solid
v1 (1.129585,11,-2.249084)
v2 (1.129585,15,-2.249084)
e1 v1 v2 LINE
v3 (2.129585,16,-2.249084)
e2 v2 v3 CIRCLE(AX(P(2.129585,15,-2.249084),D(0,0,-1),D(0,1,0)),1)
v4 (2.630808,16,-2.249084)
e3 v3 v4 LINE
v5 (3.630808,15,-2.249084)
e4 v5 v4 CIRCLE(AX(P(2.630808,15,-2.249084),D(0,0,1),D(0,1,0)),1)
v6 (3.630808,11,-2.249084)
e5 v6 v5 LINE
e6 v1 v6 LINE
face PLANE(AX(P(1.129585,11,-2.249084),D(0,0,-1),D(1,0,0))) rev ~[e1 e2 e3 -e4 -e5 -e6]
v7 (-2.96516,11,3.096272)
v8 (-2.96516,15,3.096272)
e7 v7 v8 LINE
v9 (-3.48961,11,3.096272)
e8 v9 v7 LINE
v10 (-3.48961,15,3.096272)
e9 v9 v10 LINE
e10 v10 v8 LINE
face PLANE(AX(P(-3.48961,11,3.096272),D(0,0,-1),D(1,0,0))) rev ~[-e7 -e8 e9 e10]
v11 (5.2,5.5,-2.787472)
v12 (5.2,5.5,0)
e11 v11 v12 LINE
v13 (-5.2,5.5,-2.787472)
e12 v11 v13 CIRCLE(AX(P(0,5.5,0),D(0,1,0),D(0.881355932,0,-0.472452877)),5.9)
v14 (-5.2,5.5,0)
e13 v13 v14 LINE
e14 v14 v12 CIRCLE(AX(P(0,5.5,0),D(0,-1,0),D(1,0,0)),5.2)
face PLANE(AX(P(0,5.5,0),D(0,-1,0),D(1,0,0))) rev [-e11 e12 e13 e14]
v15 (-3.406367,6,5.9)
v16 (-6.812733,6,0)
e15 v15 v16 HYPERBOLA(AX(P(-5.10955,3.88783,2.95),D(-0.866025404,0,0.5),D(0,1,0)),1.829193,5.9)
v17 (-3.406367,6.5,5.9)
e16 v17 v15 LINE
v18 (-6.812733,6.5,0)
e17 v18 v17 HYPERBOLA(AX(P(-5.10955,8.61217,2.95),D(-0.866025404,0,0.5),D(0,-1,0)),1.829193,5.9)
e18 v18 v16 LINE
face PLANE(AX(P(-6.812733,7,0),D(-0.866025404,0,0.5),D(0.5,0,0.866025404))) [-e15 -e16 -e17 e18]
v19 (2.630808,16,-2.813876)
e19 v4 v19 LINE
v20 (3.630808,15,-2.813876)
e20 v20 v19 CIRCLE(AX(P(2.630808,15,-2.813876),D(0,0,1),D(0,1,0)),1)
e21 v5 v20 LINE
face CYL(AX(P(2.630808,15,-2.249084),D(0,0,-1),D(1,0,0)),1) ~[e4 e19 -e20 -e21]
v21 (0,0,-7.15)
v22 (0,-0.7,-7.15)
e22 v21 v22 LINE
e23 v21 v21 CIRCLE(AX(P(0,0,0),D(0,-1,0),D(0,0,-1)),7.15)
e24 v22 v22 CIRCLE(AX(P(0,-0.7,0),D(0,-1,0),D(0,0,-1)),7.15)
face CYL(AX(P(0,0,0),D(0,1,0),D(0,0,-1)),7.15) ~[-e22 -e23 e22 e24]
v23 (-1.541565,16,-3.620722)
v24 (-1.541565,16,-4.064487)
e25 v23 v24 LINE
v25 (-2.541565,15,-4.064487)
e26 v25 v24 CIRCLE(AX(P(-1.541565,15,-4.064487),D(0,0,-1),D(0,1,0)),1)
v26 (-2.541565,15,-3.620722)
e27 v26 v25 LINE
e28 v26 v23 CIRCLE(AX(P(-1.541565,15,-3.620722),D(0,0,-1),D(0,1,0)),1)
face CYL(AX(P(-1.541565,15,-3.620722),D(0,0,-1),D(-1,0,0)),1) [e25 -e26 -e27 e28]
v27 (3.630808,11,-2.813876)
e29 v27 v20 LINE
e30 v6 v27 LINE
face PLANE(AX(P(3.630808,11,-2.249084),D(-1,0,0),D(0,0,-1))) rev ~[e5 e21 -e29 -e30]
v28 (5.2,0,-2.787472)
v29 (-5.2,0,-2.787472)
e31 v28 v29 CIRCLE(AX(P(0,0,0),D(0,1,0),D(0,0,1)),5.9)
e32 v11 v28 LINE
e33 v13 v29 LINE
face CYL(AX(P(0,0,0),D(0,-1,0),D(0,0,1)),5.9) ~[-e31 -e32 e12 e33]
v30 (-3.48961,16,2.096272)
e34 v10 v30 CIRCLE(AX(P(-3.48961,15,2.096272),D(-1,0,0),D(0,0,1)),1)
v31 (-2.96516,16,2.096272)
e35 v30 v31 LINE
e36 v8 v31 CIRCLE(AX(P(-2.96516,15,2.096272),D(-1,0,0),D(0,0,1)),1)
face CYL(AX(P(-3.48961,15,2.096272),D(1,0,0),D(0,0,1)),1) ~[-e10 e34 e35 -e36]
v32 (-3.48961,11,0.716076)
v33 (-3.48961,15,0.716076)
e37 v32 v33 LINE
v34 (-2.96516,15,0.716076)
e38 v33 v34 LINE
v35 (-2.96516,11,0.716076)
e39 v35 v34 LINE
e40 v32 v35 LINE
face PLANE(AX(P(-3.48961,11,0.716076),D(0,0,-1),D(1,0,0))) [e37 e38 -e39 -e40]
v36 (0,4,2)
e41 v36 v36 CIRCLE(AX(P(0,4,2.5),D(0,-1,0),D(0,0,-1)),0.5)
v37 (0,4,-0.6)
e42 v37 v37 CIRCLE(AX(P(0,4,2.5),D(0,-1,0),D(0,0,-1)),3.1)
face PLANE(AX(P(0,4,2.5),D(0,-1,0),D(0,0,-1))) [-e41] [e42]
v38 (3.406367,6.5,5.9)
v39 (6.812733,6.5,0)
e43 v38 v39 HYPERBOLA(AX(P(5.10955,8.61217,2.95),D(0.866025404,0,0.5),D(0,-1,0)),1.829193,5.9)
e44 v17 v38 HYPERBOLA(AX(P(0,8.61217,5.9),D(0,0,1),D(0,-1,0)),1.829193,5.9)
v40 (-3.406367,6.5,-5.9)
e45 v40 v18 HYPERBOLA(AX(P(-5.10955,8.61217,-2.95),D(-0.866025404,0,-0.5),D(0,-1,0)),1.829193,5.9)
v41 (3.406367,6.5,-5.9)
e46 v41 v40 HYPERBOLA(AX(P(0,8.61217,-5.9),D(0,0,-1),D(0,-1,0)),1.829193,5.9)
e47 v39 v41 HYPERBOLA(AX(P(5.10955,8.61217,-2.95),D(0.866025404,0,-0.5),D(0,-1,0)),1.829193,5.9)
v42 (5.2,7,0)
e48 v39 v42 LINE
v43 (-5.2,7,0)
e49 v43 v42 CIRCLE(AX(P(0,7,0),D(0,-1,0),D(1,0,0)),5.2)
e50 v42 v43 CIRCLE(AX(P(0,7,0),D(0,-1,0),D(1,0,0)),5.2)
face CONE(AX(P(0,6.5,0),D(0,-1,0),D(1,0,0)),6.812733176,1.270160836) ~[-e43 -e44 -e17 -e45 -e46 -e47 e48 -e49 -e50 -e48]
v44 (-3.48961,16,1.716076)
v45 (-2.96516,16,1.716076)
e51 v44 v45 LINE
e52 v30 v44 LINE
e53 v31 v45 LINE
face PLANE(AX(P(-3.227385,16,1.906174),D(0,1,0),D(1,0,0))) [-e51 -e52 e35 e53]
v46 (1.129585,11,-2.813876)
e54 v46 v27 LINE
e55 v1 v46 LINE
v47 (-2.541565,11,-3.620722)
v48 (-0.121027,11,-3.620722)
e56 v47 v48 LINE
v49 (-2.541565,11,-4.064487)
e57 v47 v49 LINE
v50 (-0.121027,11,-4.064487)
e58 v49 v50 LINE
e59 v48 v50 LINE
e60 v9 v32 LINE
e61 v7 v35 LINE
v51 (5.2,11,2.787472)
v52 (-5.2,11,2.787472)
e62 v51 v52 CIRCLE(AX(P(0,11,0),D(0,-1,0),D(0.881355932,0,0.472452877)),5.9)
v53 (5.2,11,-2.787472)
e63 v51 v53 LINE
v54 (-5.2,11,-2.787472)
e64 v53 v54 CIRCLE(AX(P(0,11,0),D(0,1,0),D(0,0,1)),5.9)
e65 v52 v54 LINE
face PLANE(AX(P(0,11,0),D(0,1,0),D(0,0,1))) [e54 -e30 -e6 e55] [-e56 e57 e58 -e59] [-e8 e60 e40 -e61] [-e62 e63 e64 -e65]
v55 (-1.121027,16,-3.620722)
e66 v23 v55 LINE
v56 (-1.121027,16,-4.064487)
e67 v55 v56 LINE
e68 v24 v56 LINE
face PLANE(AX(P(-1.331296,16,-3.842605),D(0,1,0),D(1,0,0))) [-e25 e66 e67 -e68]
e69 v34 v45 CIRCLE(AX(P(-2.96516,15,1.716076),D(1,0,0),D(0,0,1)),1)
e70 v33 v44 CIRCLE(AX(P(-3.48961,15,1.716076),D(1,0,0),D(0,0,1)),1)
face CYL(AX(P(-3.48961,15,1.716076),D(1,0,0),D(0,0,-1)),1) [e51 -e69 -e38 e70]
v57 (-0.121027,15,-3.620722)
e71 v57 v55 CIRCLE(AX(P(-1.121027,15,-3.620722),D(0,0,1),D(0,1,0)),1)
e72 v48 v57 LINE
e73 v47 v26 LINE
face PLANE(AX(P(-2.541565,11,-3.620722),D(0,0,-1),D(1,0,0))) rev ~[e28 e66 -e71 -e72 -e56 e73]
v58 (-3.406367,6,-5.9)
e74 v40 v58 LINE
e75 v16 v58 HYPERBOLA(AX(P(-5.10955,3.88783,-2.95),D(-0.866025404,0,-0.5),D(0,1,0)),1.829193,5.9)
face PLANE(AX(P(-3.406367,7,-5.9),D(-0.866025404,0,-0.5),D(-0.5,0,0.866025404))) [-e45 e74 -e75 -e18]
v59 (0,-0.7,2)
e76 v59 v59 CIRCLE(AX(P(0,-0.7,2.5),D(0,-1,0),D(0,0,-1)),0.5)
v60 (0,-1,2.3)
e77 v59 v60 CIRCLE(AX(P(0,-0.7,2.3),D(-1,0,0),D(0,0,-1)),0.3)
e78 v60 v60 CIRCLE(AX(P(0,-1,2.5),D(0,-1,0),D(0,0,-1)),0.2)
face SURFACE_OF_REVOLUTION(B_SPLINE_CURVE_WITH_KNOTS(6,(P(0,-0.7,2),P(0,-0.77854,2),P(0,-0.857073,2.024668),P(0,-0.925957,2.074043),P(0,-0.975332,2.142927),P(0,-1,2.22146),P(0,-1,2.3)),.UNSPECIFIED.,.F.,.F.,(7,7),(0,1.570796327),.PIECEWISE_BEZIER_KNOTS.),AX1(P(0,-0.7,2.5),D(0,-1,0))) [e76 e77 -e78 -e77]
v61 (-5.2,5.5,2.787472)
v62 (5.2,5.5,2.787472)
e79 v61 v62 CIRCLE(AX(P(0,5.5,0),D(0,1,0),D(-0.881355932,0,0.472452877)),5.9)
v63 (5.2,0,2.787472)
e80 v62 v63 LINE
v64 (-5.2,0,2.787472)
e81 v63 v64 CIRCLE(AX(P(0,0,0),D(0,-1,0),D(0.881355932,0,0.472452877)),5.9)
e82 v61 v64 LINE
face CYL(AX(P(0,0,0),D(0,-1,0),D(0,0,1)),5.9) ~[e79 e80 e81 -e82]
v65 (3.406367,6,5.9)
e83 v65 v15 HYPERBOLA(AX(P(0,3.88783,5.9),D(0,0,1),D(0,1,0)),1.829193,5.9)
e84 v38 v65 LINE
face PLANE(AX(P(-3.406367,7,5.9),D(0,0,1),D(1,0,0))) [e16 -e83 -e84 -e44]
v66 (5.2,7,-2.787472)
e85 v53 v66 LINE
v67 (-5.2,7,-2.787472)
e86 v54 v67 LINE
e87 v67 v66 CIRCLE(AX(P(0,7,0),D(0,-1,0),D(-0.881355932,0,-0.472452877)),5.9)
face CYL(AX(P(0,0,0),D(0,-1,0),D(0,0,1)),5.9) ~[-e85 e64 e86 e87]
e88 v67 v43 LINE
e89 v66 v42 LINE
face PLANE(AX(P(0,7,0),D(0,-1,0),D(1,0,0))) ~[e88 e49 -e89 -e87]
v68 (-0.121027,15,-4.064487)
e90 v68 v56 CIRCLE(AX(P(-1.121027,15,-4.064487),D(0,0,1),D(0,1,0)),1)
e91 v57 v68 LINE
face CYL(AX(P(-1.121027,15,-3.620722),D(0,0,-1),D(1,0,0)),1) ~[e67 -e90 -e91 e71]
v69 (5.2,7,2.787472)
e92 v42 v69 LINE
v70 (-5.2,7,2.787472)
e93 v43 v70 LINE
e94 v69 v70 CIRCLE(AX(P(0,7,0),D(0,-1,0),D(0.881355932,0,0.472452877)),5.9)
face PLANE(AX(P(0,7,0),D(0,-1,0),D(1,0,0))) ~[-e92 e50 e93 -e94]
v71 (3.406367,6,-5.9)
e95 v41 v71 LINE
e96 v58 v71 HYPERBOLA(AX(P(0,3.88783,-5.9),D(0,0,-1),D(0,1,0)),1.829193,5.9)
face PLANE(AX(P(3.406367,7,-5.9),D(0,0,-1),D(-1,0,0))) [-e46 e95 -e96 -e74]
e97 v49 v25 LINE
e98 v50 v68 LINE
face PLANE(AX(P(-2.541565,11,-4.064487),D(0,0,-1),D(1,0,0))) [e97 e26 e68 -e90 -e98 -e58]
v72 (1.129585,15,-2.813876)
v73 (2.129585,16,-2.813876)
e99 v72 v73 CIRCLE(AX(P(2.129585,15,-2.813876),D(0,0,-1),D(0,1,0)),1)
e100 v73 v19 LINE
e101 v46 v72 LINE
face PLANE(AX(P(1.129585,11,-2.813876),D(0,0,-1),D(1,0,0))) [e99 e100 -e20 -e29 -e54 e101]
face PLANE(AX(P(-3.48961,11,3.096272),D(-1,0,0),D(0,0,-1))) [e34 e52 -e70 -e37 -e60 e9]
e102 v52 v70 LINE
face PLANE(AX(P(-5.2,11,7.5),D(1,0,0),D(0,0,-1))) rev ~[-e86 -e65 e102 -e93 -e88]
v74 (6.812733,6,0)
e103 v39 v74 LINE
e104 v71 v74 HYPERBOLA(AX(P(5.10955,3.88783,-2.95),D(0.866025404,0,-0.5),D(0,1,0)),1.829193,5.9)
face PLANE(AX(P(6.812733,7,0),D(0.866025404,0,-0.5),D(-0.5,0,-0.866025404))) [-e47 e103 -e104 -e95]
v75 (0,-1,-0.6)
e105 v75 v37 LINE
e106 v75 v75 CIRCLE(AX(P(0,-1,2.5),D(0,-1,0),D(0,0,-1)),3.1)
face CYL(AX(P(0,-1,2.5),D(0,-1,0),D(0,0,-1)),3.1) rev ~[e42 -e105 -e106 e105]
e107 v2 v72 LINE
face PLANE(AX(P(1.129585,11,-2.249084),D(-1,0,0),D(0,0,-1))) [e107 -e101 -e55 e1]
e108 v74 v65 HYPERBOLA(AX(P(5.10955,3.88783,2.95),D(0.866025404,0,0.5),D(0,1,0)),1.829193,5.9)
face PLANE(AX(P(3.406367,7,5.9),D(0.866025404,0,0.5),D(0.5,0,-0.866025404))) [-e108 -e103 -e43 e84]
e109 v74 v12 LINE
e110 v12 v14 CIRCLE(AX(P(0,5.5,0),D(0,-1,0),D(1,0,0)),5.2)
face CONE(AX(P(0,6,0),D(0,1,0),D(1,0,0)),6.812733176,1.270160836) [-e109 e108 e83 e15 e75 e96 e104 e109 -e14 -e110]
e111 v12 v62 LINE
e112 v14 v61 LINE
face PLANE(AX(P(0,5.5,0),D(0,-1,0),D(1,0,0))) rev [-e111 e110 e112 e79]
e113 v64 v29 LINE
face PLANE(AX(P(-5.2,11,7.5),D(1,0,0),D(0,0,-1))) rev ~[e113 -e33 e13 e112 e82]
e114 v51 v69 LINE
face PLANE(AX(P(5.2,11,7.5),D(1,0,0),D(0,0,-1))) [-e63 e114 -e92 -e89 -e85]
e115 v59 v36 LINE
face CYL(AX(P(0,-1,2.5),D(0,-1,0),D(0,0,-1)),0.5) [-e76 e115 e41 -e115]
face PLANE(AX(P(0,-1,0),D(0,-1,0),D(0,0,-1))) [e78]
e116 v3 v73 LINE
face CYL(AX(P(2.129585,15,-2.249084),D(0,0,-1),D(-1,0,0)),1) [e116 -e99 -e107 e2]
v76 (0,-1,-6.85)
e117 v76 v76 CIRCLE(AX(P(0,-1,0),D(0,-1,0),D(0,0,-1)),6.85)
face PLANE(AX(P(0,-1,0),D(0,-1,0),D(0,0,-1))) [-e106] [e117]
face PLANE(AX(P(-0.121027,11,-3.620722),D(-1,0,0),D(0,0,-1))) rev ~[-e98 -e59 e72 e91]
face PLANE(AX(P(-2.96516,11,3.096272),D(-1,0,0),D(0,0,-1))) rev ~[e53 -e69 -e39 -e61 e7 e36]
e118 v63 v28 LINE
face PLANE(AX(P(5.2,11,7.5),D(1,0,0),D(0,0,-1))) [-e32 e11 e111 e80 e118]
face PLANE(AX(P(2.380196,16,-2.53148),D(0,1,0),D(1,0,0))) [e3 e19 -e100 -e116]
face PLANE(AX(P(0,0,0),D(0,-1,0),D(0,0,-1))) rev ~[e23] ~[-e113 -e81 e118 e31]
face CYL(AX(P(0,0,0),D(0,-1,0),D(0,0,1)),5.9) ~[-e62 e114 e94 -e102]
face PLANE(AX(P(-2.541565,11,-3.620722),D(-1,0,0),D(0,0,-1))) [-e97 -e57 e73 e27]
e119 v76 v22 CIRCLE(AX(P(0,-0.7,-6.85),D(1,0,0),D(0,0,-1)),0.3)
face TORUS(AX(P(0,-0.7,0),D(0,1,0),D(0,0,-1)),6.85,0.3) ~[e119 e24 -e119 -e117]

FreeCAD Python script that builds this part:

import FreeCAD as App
import Part
import Sketcher

V = App.Vector
Q = App.Units.Quantity


def edges_at(feature, points):
    """Names of the edges that pass closest to the given points."""
    edges = feature.Shape.Edges
    near = lambda p: min(range(len(edges)), key=lambda i: edges[i].distToShape(Part.Vertex(*p))[0])
    return sorted({f"Edge{near(p) + 1}" for p in points})


def add_polygon(sketch, points):
    """Adds a closed chain of lines whose ends are joined by coincident constraints."""
    first, n = sketch.GeometryCount, len(points)
    for a, b in zip(points, points[1:] + points[:1]):
        sketch.addGeometry(Part.LineSegment(App.Vector(*a, 0), App.Vector(*b, 0)), False)
    for i in range(n):
        sketch.addConstraint(Sketcher.Constraint("Coincident", first + i, 2, first + (i + 1) % n, 1))

doc = App.newDocument("Part")
params = doc.addObject("Spreadsheet::Sheet", "Params")
for row, (alias, value) in enumerate([
    ("sketch1_diameter", "11.8 mm"),
    ("pad1_length", "11 mm"),
    ("sketch2_diameter", "14.3 mm"),
    ("pad2_length", "1 mm"),
    ("sketch3_diameter", "1 mm"),
    ("sketch3_diameter2", "6.2 mm"),
    ("pocket1_length", "5 mm"),
    ("fillet_radius", "0.3 mm"),
    ("fillet2_radius", "0.3 mm"),
    ("sketch4_height", "21 mm"),
    ("sketch4_height2", "15 mm"),
    ("sketch4_width", "16.4 mm"),
    ("sketch4_width2", "10.4 mm"),
    ("pocket2_length", "11 mm"),
    ("pad3_length", "5 mm"),
    ("fillet3_radius", "1 mm"),
    ("pad4_length", "1.5 mm"),
    ("sketch7_height", "0.5 mm"),
    ("groove_angle", "360 deg"),
], start=1):
    params.set(f"A{row}", alias)
    params.set(f"B{row}", "=" + value)
    params.setAlias(f"B{row}", alias)

body = doc.addObject("PartDesign::Body", "Body")

# Sketch on XZ plane
sketch1 = doc.addObject("Sketcher::SketchObject", "Sketch")
body.addObject(sketch1)
sketch1.AttachmentSupport = (doc.XZ_Plane, [""])
sketch1.MapMode = "FlatFace"
sketch1.addGeometry(Part.Circle(V(0, 0, 0), V(0, 0, 1), 6), False)
sketch1.addConstraint([
    Sketcher.Constraint("Coincident", 0, 3, -1, 1),
    Sketcher.Constraint("Diameter", 0, 11.8),
])
sketch1.setExpression("Constraints[1]", "Params.sketch1_diameter")
pad1 = doc.addObject("PartDesign::Pad", "Pad")
body.addObject(pad1)
pad1.Profile = sketch1
pad1.setExpression("Length", "Params.pad1_length")
pad1.Reversed = True

# Sketch on XZ plane
sketch2 = doc.addObject("Sketcher::SketchObject", "Sketch001")
body.addObject(sketch2)
sketch2.AttachmentSupport = (doc.XZ_Plane, [""])
sketch2.MapMode = "FlatFace"
sketch2.addGeometry(Part.Circle(V(0, 0, 0), V(0, 0, 1), 7), False)
sketch2.addConstraint([
    Sketcher.Constraint("Coincident", 0, 3, -1, 1),
    Sketcher.Constraint("Diameter", 0, 14.3),
])
sketch2.setExpression("Constraints[1]", "Params.sketch2_diameter")
pad2 = doc.addObject("PartDesign::Pad", "Pad001")
body.addObject(pad2)
pad2.Profile = sketch2
pad2.setExpression("Length", "Params.pad2_length")

# Sketch on XZ plane
sketch3 = doc.addObject("Sketcher::SketchObject", "Sketch002")
body.addObject(sketch3)
sketch3.AttachmentSupport = (doc.XZ_Plane, [""])
sketch3.MapMode = "FlatFace"
sketch3.AttachmentOffset = App.Placement(V(0, 0, 1), App.Rotation())
sketch3.addGeometry([
    Part.Circle(V(0, 2.5, 0), V(0, 0, 1), 3.1),
    Part.Circle(V(0, 2.5, 0), V(0, 0, 1), 0.5),
], False)
sketch3.addConstraint([
    Sketcher.Constraint("Coincident", 1, 3, 0, 3),
    Sketcher.Constraint("PointOnObject", 0, 3, -2),
    Sketcher.Constraint("Diameter", 1, 1.0),
    Sketcher.Constraint("Diameter", 0, 6.2),
    Sketcher.Constraint("DistanceY", -1, 1, 0, 3, 2.5),
])
sketch3.setExpression("Constraints[2]", "Params.sketch3_diameter")
sketch3.setExpression("Constraints[3]", "Params.sketch3_diameter2")
pocket1 = doc.addObject("PartDesign::Pocket", "Pocket")
body.addObject(pocket1)
pocket1.Profile = sketch3
pocket1.setExpression("Length", "Params.pocket1_length")
doc.recompute()

fillet = doc.addObject("PartDesign::Fillet", "Fillet")
body.addObject(fillet)
fillet.Base = (pocket1, edges_at(pocket1, [(0, -1, 3)]))
fillet.setExpression("Radius", "Params.fillet_radius")
doc.recompute()

fillet2 = doc.addObject("PartDesign::Fillet", "Fillet001")
body.addObject(fillet2)
fillet2.Base = (fillet, edges_at(fillet, [(0, -1, 7.15)]))
fillet2.setExpression("Radius", "Params.fillet2_radius")

# Sketch on XZ plane
sketch4 = doc.addObject("Sketcher::SketchObject", "Sketch003")
body.addObject(sketch4)
sketch4.AttachmentSupport = (doc.XZ_Plane, [""])
sketch4.MapMode = "FlatFace"
sketch4.AttachmentOffset = App.Placement(V(0, 0, -11), App.Rotation())
add_polygon(sketch4, [(-8, -10), (-8, 10), (8, 10), (8, -10)])  # lines 0-3
add_polygon(sketch4, [(5, 8), (-5, 8), (-5, -8), (5, -8)])  # lines 4-7
sketch4.addConstraint([
    Sketcher.Constraint("Vertical", 0),
    Sketcher.Constraint("Horizontal", 1),
    Sketcher.Constraint("Vertical", 2),
    Sketcher.Constraint("Horizontal", 3),
    Sketcher.Constraint("Horizontal", 4),
    Sketcher.Constraint("Vertical", 5),
    Sketcher.Constraint("Horizontal", 6),
    Sketcher.Constraint("Vertical", 7),
    Sketcher.Constraint("Symmetric", 0, 2, 2, 2, -1, 1),
    Sketcher.Constraint("Symmetric", 4, 2, 6, 2, -1, 1),
    Sketcher.Constraint("DistanceY", 0, 1, 0, 2, 21.0),
    Sketcher.Constraint("DistanceY", 5, 2, 5, 1, 15.0),
    Sketcher.Constraint("DistanceX", 1, 1, 1, 2, 16.4),
    Sketcher.Constraint("DistanceX", 4, 2, 4, 1, 10.4),
])
sketch4.setExpression("Constraints[18]", "Params.sketch4_height")
sketch4.setExpression("Constraints[19]", "Params.sketch4_height2")
sketch4.setExpression("Constraints[20]", "Params.sketch4_width")
sketch4.setExpression("Constraints[21]", "Params.sketch4_width2")
pocket2 = doc.addObject("PartDesign::Pocket", "Pocket001")
body.addObject(pocket2)
pocket2.Profile = sketch4
pocket2.setExpression("Length", "Params.pocket2_length")
pocket2.Reversed = True

# Sketch on XZ plane
sketch5 = doc.addObject("Sketcher::SketchObject", "Sketch004")
body.addObject(sketch5)
sketch5.AttachmentSupport = (doc.XZ_Plane, [""])
sketch5.MapMode = "FlatFace"
sketch5.AttachmentOffset = App.Placement(V(0, 0, -11), App.Rotation())
add_polygon(sketch5, [(-2.54, -4.06), (-2.54, -3.62), (-0.12, -3.62), (-0.12, -4.06)])  # lines 0-3
add_polygon(sketch5, [(1.13, -2.81), (1.13, -2.25), (3.63, -2.25), (3.63, -2.81)])  # lines 4-7
add_polygon(sketch5, [(-3.49, 0.72), (-3.49, 3.1), (-2.97, 3.1), (-2.97, 0.72)])  # lines 8-11
sketch5.addConstraint([
    Sketcher.Constraint("Vertical", 0),
    Sketcher.Constraint("Horizontal", 1),
    Sketcher.Constraint("Vertical", 2),
    Sketcher.Constraint("Horizontal", 3),
    Sketcher.Constraint("Vertical", 4),
    Sketcher.Constraint("Horizontal", 5),
    Sketcher.Constraint("Vertical", 6),
    Sketcher.Constraint("Horizontal", 7),
    Sketcher.Constraint("Vertical", 8),
    Sketcher.Constraint("Horizontal", 9),
    Sketcher.Constraint("Vertical", 10),
    Sketcher.Constraint("Horizontal", 11),
    Sketcher.Constraint("DistanceX", 1, 1, 1, 2, 2.420538),
    Sketcher.Constraint("DistanceX", 9, 1, 9, 2, 0.52445),
    Sketcher.Constraint("DistanceX", 5, 1, 5, 2, 2.501223),
    Sketcher.Constraint("DistanceY", 0, 1, 0, 2, 0.443765),
    Sketcher.Constraint("DistanceY", 4, 1, 4, 2, 0.564792),
    Sketcher.Constraint("DistanceY", 8, 1, 8, 2, 2.380196),
    Sketcher.Constraint("DistanceX", 8, 2, -1, 1, 3.48961),
    Sketcher.Constraint("DistanceX", 1, 2, 4, 2, 1.250611),
    Sketcher.Constraint("DistanceY", 1, 2, 4, 2, 1.371638),
    Sketcher.Constraint("DistanceY", 3, 2, 8, 2, 7.160759),
    Sketcher.Constraint("DistanceX", 0, 2, -1, 1, 2.541565),
    Sketcher.Constraint("DistanceY", 0, 2, -1, 1, 3.620722),
])
pad3 = doc.addObject("PartDesign::Pad", "Pad002")
body.addObject(pad3)
pad3.Profile = sketch5
pad3.setExpression("Length", "Params.pad3_length")
pad3.Reversed = True
doc.recompute()

fillet3 = doc.addObject("PartDesign::Fillet", "Fillet002")
body.addObject(fillet3)
fillet3.Base = (pad3, edges_at(pad3, [
    (-0.121, 16, -3.843),
    (-2.542, 16, -3.843),
    (3.631, 16, -2.531),
    (1.13, 16, -2.531),
    (-3.227, 16, 0.716),
    (-3.227, 16, 3.096),
]))
fillet3.setExpression("Radius", "Params.fillet3_radius")

# Sketch on XZ plane
sketch6 = doc.addObject("Sketcher::SketchObject", "Sketch005")
body.addObject(sketch6)
sketch6.AttachmentSupport = (doc.XZ_Plane, [""])
sketch6.MapMode = "FlatFace"
sketch6.AttachmentOffset = App.Placement(V(0, 0, -7), App.Rotation())
add_polygon(sketch6, [(-3, -6), (-7, 0), (-3, 6), (3, 6), (7, 0), (3, -6)])  # lines 0-5
sketch6.addConstraint([
    Sketcher.Constraint("Horizontal", 2),
    Sketcher.Constraint("Horizontal", 5),
    Sketcher.Constraint("Symmetric", 0, 2, 3, 2, -1, 1),
    Sketcher.Constraint("Symmetric", 1, 2, 4, 2, -1, 1),
    Sketcher.Constraint("PointOnObject", 0, 2, -1),
    Sketcher.Constraint("Parallel", 0, 3),
    Sketcher.Constraint("Vertical", 2, 2, 4, 2),
    Sketcher.Constraint("Angle", 0, Q("120 deg")),
    Sketcher.Constraint("DistanceY", -1, 1, 1, 2, 5.9),
    Sketcher.Constraint("DistanceX", 0, 2, 2, 2, 10.2191),
])
pad4 = doc.addObject("PartDesign::Pad", "Pad003")
body.addObject(pad4)
pad4.Profile = sketch6
pad4.setExpression("Length", "Params.pad4_length")

# Sketch on XY plane
sketch7 = doc.addObject("Sketcher::SketchObject", "Sketch006")
body.addObject(sketch7)
sketch7.AttachmentSupport = (doc.XY_Plane, [""])
sketch7.MapMode = "FlatFace"
add_polygon(sketch7, [(-6.8, 7), (-6.8, 6.5), (-5.2, 7)])  # lines 0-2
add_polygon(sketch7, [(-6.8, 5.5), (-5.2, 5.5), (-6.8, 6)])  # lines 3-5
sketch7.addConstraint([
    Sketcher.Constraint("Vertical", 0),
    Sketcher.Constraint("Horizontal", 2),
    Sketcher.Constraint("Horizontal", 3),
    Sketcher.Constraint("Vertical", 5),
    Sketcher.Constraint("Vertical", 1, 2, 3, 2),
    Sketcher.Constraint("Vertical", 2, 2, 4, 2),
    Sketcher.Constraint("Equal", 0, 5),
    Sketcher.Constraint("DistanceY", 0, 2, 0, 1, 0.5),
    Sketcher.Constraint("DistanceY", -1, 1, 1, 2, 7.0),
    Sketcher.Constraint("DistanceY", -1, 1, 4, 2, 6.0),
    Sketcher.Constraint("DistanceX", 1, 2, -1, 1, 5.2),
    Sketcher.Constraint("DistanceX", 2, 2, 2, 1, 1.612733),
])
sketch7.setExpression("Constraints[13]", "Params.sketch7_height")
groove = doc.addObject("PartDesign::Groove", "Groove")
body.addObject(groove)
groove.Profile = sketch7
groove.ReferenceAxis = (sketch7, ["V_Axis"])
groove.setExpression("Angle", "Params.groove_angle")

doc.recompute()
